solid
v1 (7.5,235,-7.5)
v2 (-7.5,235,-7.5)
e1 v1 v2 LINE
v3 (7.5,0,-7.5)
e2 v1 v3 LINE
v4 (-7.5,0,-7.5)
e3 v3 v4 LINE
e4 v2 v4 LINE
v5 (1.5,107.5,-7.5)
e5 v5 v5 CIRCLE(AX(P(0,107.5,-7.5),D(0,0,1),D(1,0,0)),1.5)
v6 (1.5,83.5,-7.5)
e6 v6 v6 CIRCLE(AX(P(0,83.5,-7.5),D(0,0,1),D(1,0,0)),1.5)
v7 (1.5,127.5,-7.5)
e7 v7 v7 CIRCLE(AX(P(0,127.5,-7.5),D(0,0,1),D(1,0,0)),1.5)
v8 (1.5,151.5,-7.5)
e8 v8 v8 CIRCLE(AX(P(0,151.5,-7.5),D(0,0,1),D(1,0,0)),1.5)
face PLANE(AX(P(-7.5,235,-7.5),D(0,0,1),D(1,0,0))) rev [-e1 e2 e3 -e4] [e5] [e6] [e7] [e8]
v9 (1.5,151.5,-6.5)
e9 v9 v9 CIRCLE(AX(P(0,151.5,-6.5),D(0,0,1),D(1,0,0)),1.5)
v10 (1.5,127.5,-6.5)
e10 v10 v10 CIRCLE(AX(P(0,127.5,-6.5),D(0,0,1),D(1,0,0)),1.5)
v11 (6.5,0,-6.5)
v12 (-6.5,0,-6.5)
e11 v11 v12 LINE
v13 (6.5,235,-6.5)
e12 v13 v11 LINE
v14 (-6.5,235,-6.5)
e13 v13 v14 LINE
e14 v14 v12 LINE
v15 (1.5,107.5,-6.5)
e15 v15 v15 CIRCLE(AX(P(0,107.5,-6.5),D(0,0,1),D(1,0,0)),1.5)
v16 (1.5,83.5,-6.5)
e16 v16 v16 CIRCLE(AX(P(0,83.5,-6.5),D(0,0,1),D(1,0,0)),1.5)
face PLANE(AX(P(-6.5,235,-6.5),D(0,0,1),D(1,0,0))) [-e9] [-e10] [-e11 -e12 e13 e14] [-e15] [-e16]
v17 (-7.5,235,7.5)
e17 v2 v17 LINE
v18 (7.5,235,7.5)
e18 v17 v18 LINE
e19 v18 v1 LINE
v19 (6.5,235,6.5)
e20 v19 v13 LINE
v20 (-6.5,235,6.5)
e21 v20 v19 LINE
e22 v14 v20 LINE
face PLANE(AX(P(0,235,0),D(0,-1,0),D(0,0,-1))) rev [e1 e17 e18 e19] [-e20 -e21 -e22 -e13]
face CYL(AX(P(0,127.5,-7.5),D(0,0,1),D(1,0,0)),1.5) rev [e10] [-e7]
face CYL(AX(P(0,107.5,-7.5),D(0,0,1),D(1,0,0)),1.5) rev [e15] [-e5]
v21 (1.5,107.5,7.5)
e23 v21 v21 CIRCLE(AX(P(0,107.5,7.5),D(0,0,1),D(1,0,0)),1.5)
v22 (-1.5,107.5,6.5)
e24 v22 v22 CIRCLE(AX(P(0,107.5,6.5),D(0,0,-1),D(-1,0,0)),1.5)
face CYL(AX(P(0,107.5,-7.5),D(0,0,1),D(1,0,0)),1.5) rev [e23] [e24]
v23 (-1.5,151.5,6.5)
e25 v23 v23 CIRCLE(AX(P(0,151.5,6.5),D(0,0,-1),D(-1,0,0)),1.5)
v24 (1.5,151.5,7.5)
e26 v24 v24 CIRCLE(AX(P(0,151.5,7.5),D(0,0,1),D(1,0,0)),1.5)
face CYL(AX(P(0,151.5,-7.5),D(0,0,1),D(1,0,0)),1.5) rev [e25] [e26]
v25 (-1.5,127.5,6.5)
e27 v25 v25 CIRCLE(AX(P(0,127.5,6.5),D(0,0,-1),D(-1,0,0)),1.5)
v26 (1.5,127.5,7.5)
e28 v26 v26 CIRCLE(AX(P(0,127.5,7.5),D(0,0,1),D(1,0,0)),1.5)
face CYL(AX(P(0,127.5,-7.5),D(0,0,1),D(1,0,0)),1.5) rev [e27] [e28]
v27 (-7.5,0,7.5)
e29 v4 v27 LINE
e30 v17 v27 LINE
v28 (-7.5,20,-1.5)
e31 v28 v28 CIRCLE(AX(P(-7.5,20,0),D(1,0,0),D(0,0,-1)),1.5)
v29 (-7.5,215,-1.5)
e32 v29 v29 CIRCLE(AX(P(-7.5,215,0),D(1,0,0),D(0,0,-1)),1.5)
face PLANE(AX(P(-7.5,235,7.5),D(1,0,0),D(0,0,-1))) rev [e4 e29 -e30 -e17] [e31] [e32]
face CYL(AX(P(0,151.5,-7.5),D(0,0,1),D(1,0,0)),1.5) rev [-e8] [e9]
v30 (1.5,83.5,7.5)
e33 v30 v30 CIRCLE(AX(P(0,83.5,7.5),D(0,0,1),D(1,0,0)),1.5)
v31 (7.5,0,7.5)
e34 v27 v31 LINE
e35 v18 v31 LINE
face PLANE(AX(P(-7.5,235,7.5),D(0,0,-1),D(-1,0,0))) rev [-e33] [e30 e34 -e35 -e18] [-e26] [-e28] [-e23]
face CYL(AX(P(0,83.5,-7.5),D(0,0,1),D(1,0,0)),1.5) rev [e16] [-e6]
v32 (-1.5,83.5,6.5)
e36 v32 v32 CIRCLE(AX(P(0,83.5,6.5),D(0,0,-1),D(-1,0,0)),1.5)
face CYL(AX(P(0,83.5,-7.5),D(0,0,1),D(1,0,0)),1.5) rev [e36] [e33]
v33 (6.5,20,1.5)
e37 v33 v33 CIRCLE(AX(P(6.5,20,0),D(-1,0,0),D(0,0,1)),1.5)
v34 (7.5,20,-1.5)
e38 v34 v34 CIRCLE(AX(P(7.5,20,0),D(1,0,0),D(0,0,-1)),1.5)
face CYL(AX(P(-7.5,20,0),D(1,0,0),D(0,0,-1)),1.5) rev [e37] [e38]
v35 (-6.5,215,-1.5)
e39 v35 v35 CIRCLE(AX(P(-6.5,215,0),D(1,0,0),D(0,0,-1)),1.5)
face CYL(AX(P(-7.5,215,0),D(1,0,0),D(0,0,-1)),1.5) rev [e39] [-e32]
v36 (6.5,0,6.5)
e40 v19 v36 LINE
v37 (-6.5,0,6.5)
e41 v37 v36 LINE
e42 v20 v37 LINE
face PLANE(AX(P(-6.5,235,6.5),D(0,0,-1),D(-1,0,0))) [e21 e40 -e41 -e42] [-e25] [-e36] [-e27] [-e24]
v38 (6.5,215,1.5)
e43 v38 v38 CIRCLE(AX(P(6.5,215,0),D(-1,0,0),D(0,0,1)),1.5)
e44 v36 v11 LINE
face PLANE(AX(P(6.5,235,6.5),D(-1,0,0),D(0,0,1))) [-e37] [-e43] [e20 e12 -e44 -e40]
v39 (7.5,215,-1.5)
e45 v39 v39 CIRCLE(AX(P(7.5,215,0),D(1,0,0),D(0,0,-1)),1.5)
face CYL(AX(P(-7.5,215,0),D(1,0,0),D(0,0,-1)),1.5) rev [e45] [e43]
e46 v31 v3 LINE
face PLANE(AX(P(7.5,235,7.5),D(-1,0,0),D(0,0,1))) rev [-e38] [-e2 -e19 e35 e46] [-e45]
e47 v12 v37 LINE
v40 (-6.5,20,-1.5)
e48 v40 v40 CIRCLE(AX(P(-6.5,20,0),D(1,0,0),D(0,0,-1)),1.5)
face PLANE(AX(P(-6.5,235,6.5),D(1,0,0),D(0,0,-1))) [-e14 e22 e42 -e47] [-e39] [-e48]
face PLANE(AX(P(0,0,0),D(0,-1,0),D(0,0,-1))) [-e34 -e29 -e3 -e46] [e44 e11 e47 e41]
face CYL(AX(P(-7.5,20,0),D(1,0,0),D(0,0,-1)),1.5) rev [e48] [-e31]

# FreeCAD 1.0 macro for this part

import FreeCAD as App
import Part
import Sketcher

V = App.Vector
Q = App.Units.Quantity

doc = App.newDocument("Part")
body = doc.addObject("PartDesign::Body", "Body")

# Sketch on XZ plane
sketch1 = doc.addObject("Sketcher::SketchObject", "Sketch")
body.addObject(sketch1)
sketch1.AttachmentSupport = (doc.XZ_Plane, [""])
sketch1.MapMode = "FlatFace"
sketch1.addGeometry([
    Part.LineSegment(V(-7.5, -7.5, 0), V(-7.5, 7.5, 0)),  # 0
    Part.LineSegment(V(-7.5, 7.5, 0), V(7.5, 7.5, 0)),  # 1
    Part.LineSegment(V(7.5, 7.5, 0), V(7.5, -7.5, 0)),  # 2
    Part.LineSegment(V(7.5, -7.5, 0), V(-7.5, -7.5, 0)),  # 3
    Part.LineSegment(V(6.5, 6.5, 0), V(-6.5, 6.5, 0)),  # 4
    Part.LineSegment(V(-6.5, 6.5, 0), V(-6.5, -6.5, 0)),  # 5
    Part.LineSegment(V(-6.5, -6.5, 0), V(6.5, -6.5, 0)),  # 6
    Part.LineSegment(V(6.5, -6.5, 0), V(6.5, 6.5, 0)),  # 7
], False)
sketch1.addConstraint([
    Sketcher.Constraint("Coincident", 0, 2, 1, 1),
    Sketcher.Constraint("Coincident", 1, 2, 2, 1),
    Sketcher.Constraint("Coincident", 2, 2, 3, 1),
    Sketcher.Constraint("Coincident", 3, 2, 0, 1),
    Sketcher.Constraint("Coincident", 4, 2, 5, 1),
    Sketcher.Constraint("Coincident", 5, 2, 6, 1),
    Sketcher.Constraint("Coincident", 6, 2, 7, 1),
    Sketcher.Constraint("Coincident", 7, 2, 4, 1),
    Sketcher.Constraint("Vertical", 0),
    Sketcher.Constraint("Horizontal", 1),
    Sketcher.Constraint("Vertical", 2),
    Sketcher.Constraint("Horizontal", 3),
    Sketcher.Constraint("Horizontal", 4),
    Sketcher.Constraint("Vertical", 5),
    Sketcher.Constraint("Horizontal", 6),
    Sketcher.Constraint("Vertical", 7),
    Sketcher.Constraint("Symmetric", 0, 2, 2, 2, -1, 1),
    Sketcher.Constraint("Symmetric", 4, 2, 6, 2, -1, 1),
    Sketcher.Constraint("Equal", 3, 0),
    Sketcher.Constraint("Equal", 6, 5),
    Sketcher.Constraint("DistanceX", 1, 1, 1, 2, Q("15 mm")),
    Sketcher.Constraint("DistanceX", 4, 2, 4, 1, Q("13 mm")),
])
pad1 = doc.addObject("PartDesign::Pad", "Pad")
body.addObject(pad1)
pad1.Profile = sketch1
pad1.Length = 235
pad1.Reversed = True

# Sketch on XY plane
sketch2 = doc.addObject("Sketcher::SketchObject", "Sketch001")
body.addObject(sketch2)
sketch2.AttachmentSupport = (doc.XY_Plane, [""])
sketch2.MapMode = "FlatFace"
sketch2.AttachmentOffset = App.Placement(V(0, 0, 7.5), App.Rotation())
sketch2.addGeometry([
    Part.Circle(V(0, 127.5, 0), V(0, 0, 1), 1.5),
    Part.Circle(V(0, 107.5, 0), V(0, 0, 1), 1.5),
    Part.Circle(V(0, 151.5, 0), V(0, 0, 1), 1.5),
    Part.Circle(V(0, 83.5, 0), V(0, 0, 1), 1.5),
], False)
sketch2.addConstraint([
    Sketcher.Constraint("Equal", 0, 1),
    Sketcher.Constraint("Equal", 1, 2),
    Sketcher.Constraint("Equal", 2, 3),
    Sketcher.Constraint("PointOnObject", 0, 3, -2),
    Sketcher.Constraint("PointOnObject", 1, 3, -2),
    Sketcher.Constraint("PointOnObject", 2, 3, -2),
    Sketcher.Constraint("PointOnObject", 3, 3, -2),
    Sketcher.Constraint("Diameter", 0, Q("3 mm")),
    Sketcher.Constraint("DistanceY", 1, 3, 0, 3, Q("20 mm")),
    Sketcher.Constraint("DistanceY", 0, 3, 2, 3, Q("24 mm")),
    Sketcher.Constraint("DistanceY", 3, 3, 1, 3, Q("24 mm")),
    Sketcher.Constraint("DistanceY", -1, 1, 0, 3, Q("127.5 mm")),
])
pocket1 = doc.addObject("PartDesign::Pocket", "Pocket")
body.addObject(pocket1)
pocket1.Profile = sketch2
pocket1.Type = "ThroughAll"

# Sketch on YZ plane
sketch3 = doc.addObject("Sketcher::SketchObject", "Sketch002")
body.addObject(sketch3)
sketch3.AttachmentSupport = (doc.YZ_Plane, [""])
sketch3.MapMode = "FlatFace"
sketch3.AttachmentOffset = App.Placement(V(0, 0, 7.5), App.Rotation())
sketch3.addGeometry([
    Part.Circle(V(215, 0, 0), V(0, 0, 1), 1.5),
    Part.Circle(V(20, 0, 0), V(0, 0, 1), 1.5),
], False)
sketch3.addConstraint([
    Sketcher.Constraint("Equal", 0, 1),
    Sketcher.Constraint("PointOnObject", 0, 3, -1),
    Sketcher.Constraint("PointOnObject", 1, 3, -1),
    Sketcher.Constraint("Diameter", 0, Q("3 mm")),
    Sketcher.Constraint("DistanceX", -1, 1, 0, 3, Q("215 mm")),
    Sketcher.Constraint("DistanceX", -1, 1, 1, 3, Q("20 mm")),
])
pocket2 = doc.addObject("PartDesign::Pocket", "Pocket001")
body.addObject(pocket2)
pocket2.Profile = sketch3
pocket2.Type = "ThroughAll"

doc.recompute()
